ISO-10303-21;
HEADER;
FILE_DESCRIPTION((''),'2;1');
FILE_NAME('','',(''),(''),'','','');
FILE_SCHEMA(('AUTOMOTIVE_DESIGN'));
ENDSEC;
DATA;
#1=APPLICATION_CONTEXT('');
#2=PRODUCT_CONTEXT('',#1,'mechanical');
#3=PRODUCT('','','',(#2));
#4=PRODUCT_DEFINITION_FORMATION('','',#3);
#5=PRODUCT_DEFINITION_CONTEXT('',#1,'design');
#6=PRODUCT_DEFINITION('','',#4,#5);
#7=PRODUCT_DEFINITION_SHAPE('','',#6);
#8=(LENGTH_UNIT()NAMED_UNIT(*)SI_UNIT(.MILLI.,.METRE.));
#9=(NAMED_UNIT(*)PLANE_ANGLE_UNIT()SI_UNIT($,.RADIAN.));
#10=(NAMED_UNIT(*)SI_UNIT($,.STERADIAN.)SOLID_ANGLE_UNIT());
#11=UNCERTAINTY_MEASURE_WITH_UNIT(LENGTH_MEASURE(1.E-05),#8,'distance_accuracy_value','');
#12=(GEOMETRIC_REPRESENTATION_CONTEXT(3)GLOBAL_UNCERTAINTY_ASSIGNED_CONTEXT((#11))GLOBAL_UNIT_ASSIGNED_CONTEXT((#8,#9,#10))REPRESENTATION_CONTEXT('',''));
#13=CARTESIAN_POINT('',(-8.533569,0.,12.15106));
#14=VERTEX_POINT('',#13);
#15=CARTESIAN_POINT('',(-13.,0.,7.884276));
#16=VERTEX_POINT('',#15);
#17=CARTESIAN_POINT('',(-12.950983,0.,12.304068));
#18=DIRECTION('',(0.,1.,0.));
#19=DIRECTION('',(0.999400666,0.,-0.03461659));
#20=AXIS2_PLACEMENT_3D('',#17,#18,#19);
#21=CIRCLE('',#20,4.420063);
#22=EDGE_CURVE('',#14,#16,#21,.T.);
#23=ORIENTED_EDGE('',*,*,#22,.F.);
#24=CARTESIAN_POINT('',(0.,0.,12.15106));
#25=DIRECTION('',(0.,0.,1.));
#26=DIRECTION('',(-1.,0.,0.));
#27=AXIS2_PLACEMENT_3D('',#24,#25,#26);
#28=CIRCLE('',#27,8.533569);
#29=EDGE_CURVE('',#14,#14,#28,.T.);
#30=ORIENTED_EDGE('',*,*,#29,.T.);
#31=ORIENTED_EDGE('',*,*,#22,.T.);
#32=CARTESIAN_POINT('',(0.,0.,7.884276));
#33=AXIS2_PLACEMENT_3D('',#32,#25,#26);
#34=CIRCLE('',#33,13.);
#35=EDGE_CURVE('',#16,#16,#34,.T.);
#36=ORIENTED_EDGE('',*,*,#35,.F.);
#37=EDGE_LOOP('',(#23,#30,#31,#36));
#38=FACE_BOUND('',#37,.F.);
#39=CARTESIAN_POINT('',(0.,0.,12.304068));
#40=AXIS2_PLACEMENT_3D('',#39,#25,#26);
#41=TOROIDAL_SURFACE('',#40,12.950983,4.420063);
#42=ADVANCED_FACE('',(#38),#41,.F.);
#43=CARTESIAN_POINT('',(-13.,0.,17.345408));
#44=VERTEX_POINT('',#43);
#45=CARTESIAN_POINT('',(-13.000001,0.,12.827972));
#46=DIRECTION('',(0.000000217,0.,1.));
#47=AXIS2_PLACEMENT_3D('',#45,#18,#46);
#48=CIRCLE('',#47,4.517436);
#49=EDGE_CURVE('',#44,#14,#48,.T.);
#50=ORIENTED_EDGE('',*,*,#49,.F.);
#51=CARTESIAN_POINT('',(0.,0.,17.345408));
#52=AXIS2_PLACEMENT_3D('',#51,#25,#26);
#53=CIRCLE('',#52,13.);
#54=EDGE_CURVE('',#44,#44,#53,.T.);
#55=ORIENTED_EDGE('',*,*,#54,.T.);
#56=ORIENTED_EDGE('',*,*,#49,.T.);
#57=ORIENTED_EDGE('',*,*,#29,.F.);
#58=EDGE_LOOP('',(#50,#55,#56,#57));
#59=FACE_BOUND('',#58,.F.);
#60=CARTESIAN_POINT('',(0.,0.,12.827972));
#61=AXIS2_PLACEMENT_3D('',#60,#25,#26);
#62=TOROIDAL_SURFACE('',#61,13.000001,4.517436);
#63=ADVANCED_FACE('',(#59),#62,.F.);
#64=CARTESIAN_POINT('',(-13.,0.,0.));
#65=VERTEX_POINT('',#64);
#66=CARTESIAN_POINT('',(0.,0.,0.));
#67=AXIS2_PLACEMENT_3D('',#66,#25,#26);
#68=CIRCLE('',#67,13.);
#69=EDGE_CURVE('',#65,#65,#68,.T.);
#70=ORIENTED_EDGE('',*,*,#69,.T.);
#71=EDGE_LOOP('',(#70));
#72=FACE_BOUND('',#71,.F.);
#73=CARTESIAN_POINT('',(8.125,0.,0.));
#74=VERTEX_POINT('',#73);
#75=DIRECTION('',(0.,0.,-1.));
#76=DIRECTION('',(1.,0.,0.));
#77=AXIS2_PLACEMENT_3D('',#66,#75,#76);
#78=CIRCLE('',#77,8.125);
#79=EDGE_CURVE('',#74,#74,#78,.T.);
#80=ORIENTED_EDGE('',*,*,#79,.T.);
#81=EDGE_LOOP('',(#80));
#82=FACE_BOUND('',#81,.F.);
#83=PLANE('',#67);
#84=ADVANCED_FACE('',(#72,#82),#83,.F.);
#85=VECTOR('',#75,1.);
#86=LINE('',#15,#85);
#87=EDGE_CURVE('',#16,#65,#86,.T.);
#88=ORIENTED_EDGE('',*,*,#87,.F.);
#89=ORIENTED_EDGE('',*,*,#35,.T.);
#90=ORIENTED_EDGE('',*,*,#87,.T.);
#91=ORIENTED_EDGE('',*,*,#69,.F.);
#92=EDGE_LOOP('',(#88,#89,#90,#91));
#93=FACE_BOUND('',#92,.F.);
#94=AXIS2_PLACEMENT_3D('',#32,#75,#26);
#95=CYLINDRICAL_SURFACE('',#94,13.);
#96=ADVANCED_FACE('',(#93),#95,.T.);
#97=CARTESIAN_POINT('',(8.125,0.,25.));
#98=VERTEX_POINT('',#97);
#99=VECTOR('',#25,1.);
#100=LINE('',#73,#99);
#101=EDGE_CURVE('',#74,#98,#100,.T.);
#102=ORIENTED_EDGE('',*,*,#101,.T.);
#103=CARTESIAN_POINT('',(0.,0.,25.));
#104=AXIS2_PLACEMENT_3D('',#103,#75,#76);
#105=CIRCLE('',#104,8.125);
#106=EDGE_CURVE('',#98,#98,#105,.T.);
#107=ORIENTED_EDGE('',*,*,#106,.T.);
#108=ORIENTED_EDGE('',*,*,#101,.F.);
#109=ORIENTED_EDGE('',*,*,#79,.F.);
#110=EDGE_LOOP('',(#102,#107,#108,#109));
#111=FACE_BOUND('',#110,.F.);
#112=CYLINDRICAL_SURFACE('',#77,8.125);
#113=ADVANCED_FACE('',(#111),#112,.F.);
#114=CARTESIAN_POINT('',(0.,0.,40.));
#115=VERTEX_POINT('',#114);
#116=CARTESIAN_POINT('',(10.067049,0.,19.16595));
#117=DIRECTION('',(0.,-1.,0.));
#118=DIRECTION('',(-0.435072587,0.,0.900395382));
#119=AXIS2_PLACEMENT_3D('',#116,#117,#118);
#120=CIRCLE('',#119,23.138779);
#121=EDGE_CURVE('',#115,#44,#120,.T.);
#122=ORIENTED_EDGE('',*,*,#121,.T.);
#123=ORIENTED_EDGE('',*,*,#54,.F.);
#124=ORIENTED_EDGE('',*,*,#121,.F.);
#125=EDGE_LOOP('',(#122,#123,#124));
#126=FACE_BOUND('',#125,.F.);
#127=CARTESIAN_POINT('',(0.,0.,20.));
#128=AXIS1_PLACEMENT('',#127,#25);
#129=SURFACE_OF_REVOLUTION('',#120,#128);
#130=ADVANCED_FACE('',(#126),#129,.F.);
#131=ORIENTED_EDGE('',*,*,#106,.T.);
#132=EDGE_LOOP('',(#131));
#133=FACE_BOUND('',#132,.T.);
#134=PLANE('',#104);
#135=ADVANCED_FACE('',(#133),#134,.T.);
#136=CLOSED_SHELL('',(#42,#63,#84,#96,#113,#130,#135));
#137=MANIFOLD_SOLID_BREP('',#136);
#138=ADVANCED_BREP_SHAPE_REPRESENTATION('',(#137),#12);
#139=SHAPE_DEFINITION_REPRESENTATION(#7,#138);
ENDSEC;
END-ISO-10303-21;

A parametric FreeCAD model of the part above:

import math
import FreeCAD as App
import Part
import Sketcher
from FreeCAD import Vector
Q = App.Units.Quantity

doc = App.newDocument("Part")
body = doc.addObject("PartDesign::Body", "Body")

# Sketch on XZ plane
sketch1 = body.newObject("Sketcher::SketchObject", "Sketch")
sketch1.AttachmentSupport = (doc.getObject("XZ_Plane"), [""])
sketch1.MapMode = "FlatFace"
sketch1.addGeometry([
    Part.LineSegment(Vector(-13, 0, 0), Vector(0, 0, 0)),  # 0
    Part.LineSegment(Vector(0, 0, 0), Vector(0, 40, 0)),  # 1
    Part.ArcOfCircle(Part.Circle(Vector(10.067049, 19.16595, 0), Vector(0, 0, 1), 23.138779), math.radians(115.789913), math.radians(184.512654)),  # 2
    Part.ArcOfCircle(Part.Circle(Vector(-13.000001, 12.827972, 0), Vector(0, 0, 1), 4.517436), math.radians(-8.617908), math.radians(89.999988)),  # 3
    Part.ArcOfCircle(Part.Circle(Vector(-12.950983, 12.304068, 0), Vector(0, 0, 1), 4.420063), math.radians(-90.635401), math.radians(-1.983781)),  # 4
    Part.LineSegment(Vector(-13, 7.884276, 0), Vector(-13, 0, 0)),  # 5
], False)
sketch1.addConstraint([
    Sketcher.Constraint("Coincident", 0, 2, 1, 1),
    Sketcher.Constraint("Coincident", 1, 2, 2, 1),
    Sketcher.Constraint("Coincident", 2, 2, 3, 2),
    Sketcher.Constraint("Coincident", 3, 1, 4, 2),
    Sketcher.Constraint("Coincident", 4, 1, 5, 1),
    Sketcher.Constraint("Coincident", 5, 2, 0, 1),
    Sketcher.Constraint("Horizontal", 0),
    Sketcher.Constraint("Vertical", 1),
    Sketcher.Constraint("Vertical", 5),
    Sketcher.Constraint("Coincident", 0, 2, -1, 1),
    Sketcher.Constraint("Vertical", 3, 3, 2, 2),
    Sketcher.Constraint("Vertical", 2, 2, 4, 1),
    Sketcher.Constraint("DistanceX", 0, 1, 0, 2, Q("13 mm")),
    Sketcher.Constraint("DistanceY", 1, 1, 1, 2, Q("40 mm")),
    Sketcher.Constraint("Radius", 2, Q("23.138779 mm")),
    Sketcher.Constraint("Radius", 3, Q("4.517436 mm")),
    Sketcher.Constraint("Radius", 4, Q("4.420063 mm")),
    Sketcher.Constraint("DistanceY", 5, 2, 5, 1, Q("7.884276 mm")),
    Sketcher.Constraint("DistanceX", -1, 1, 2, 3, Q("10.067049 mm")),
    Sketcher.Constraint("DistanceX", 3, 1, -1, 1, Q("8.533569 mm")),
])
revolution = body.newObject("PartDesign::Revolution", "Revolution")
revolution.Profile = sketch1
revolution.ReferenceAxis = (sketch1, ["V_Axis"])
revolution.Angle = 360

# Sketch on XY plane
sketch2 = body.newObject("Sketcher::SketchObject", "Sketch001")
sketch2.AttachmentSupport = (doc.getObject("XY_Plane"), [""])
sketch2.MapMode = "FlatFace"
sketch2.addGeometry(Part.Circle(Vector(0, 0, 0), Vector(0, 0, 1), 8.125), False)
sketch2.addConstraint([
    Sketcher.Constraint("Coincident", 0, 3, -1, 1),
    Sketcher.Constraint("Diameter", 0, Q("16.25 mm")),
])
pocket1 = body.newObject("PartDesign::Pocket", "Pocket")
pocket1.Profile = sketch2
pocket1.Length = 25
pocket1.Reversed = True

doc.recompute()
